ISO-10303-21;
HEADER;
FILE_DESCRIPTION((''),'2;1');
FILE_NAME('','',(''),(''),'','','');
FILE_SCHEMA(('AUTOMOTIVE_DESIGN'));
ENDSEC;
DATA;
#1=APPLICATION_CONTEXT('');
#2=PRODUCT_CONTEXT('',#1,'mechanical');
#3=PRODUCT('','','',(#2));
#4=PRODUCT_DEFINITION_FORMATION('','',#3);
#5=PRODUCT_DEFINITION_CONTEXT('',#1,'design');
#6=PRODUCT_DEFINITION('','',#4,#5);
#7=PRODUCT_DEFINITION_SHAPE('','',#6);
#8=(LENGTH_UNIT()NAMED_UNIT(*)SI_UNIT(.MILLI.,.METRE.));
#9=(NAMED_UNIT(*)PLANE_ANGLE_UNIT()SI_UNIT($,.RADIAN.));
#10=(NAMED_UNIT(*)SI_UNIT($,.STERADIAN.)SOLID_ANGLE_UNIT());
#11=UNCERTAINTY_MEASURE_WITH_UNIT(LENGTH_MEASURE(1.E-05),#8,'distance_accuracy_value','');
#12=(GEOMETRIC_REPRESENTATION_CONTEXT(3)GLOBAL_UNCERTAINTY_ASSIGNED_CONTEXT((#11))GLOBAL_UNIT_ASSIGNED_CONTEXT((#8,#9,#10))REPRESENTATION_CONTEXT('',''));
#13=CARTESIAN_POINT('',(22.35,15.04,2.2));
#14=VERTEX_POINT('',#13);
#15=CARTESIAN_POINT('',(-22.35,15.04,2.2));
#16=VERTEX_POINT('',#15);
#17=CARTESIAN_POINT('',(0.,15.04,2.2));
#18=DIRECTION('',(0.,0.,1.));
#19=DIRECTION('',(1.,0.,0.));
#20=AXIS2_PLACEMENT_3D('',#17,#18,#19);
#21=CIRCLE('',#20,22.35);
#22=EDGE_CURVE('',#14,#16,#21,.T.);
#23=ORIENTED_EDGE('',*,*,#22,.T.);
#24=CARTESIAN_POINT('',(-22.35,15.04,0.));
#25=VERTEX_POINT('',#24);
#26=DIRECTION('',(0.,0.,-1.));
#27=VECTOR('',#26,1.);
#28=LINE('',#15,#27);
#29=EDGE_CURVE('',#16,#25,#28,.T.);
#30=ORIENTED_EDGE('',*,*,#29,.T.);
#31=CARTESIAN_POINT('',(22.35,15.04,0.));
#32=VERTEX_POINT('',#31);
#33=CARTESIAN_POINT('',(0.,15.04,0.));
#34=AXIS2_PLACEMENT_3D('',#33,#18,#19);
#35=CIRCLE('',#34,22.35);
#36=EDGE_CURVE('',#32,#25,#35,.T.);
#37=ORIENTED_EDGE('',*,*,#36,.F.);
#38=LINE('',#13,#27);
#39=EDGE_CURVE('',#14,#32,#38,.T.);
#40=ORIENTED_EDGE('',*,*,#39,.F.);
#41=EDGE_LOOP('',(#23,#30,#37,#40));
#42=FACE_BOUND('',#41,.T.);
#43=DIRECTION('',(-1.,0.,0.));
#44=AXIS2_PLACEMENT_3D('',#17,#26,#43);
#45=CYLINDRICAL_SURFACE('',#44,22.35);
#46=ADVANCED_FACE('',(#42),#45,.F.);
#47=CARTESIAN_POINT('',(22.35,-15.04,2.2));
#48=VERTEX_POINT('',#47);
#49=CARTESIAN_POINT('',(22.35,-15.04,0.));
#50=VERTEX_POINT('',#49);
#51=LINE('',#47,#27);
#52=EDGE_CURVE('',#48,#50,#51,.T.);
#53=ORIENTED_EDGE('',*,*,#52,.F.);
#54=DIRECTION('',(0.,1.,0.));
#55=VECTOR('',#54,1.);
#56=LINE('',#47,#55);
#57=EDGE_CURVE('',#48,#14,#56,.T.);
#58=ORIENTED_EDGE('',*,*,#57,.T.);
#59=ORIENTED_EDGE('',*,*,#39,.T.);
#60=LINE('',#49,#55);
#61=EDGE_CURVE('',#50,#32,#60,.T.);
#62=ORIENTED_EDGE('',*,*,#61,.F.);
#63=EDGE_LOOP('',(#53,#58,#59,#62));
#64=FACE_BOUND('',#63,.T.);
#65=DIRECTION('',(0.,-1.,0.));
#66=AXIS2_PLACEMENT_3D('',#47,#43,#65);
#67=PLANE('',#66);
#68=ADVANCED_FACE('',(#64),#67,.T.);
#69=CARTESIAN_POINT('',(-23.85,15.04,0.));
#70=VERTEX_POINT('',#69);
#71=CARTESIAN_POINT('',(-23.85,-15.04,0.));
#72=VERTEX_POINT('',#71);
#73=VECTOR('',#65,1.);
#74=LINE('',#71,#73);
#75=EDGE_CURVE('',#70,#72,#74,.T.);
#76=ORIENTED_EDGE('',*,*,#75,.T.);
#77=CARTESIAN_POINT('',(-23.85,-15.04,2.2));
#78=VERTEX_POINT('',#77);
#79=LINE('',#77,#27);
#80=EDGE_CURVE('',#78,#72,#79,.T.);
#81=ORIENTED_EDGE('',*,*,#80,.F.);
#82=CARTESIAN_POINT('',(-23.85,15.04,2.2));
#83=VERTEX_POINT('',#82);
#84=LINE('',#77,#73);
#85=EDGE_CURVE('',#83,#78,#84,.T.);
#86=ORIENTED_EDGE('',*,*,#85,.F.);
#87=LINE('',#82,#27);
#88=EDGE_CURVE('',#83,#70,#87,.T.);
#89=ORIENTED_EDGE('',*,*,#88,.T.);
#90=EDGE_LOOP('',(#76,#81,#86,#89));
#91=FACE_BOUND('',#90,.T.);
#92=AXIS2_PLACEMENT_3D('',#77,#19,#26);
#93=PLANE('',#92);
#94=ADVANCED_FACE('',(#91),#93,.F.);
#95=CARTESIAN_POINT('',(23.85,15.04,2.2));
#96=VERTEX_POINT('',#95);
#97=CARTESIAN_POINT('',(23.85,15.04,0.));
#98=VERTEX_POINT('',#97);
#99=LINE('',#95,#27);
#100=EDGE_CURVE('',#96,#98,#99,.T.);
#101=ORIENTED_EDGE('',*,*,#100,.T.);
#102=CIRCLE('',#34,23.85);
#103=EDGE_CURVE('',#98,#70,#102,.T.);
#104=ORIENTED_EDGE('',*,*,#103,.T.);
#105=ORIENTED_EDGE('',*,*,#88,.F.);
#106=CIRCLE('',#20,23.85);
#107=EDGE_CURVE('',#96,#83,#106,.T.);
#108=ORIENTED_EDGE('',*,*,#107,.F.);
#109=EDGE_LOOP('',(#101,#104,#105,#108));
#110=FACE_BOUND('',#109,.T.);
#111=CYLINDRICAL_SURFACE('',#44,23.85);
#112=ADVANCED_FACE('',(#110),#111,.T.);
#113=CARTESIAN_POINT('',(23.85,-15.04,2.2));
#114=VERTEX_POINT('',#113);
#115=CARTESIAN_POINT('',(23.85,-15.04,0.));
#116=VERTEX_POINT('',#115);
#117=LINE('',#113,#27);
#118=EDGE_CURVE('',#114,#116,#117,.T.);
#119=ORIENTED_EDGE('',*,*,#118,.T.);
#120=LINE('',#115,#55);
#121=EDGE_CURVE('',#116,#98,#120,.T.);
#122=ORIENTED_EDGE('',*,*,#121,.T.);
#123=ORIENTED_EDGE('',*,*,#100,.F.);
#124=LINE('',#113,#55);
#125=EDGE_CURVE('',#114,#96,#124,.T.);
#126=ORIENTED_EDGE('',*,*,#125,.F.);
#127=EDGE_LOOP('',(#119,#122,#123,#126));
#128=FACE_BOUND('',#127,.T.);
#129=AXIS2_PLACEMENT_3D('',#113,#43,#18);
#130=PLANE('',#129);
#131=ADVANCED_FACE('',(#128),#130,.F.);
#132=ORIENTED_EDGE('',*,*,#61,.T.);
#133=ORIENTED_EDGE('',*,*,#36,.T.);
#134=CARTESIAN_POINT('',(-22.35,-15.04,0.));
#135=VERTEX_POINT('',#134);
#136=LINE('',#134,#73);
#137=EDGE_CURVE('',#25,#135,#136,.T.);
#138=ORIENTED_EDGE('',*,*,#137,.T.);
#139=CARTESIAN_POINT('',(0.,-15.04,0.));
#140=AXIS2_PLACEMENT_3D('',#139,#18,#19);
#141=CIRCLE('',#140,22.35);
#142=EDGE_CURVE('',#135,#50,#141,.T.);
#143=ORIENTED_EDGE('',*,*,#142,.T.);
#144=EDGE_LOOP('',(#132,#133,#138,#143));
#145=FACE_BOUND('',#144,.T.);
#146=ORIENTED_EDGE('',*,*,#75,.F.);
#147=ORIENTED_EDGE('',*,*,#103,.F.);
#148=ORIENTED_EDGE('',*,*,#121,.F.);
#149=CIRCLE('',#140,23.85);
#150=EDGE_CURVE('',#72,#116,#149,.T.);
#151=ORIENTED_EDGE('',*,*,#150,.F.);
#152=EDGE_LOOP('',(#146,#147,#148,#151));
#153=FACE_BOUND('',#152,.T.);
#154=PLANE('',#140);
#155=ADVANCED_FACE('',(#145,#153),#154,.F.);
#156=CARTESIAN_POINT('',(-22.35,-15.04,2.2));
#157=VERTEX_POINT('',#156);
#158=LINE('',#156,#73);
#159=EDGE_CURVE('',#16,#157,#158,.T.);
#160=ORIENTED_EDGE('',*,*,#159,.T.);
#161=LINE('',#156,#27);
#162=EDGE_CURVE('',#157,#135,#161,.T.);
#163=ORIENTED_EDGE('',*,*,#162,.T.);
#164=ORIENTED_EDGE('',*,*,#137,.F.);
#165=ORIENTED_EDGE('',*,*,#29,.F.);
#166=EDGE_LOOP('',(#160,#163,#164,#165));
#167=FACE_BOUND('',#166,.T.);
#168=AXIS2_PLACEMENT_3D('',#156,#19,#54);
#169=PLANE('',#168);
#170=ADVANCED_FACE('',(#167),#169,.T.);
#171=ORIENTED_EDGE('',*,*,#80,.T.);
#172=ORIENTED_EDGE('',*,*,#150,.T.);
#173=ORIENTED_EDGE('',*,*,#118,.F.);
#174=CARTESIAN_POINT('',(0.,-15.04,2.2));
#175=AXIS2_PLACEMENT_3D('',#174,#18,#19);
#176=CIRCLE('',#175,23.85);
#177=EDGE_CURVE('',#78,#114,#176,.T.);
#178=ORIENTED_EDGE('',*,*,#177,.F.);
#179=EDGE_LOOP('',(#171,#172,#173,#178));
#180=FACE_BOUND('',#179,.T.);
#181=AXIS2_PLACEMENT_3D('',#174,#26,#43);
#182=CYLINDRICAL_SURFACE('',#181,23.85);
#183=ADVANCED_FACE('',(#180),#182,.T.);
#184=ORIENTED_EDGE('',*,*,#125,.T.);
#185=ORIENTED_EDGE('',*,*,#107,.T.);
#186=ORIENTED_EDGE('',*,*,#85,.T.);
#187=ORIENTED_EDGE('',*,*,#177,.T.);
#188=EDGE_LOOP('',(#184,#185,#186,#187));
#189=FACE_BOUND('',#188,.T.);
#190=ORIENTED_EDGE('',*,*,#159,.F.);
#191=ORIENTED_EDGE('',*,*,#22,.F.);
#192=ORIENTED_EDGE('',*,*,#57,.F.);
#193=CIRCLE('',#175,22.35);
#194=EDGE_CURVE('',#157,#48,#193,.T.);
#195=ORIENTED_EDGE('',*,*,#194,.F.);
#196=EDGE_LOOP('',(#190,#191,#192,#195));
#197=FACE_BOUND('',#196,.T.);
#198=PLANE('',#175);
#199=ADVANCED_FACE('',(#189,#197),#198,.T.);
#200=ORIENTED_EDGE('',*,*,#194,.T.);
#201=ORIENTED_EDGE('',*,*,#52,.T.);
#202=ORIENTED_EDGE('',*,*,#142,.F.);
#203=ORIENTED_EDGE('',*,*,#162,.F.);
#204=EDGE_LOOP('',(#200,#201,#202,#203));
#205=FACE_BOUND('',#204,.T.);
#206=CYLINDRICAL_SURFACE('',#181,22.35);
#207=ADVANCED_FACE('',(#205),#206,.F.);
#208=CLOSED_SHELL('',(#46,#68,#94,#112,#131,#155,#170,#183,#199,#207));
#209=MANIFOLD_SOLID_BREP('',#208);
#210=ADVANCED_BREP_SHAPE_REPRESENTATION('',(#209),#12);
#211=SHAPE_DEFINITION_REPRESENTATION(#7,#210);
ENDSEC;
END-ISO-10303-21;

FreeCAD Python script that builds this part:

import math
import FreeCAD as App
import Part
import Sketcher

V = App.Vector

doc = App.newDocument("Part")
body = doc.addObject("PartDesign::Body", "Body")

# Sketch on XY plane
sketch1 = body.newObject("Sketcher::SketchObject", "Sketch")
sketch1.AttachmentSupport = (doc.getObject("XY_Plane"), [""])
sketch1.MapMode = "FlatFace"
sketch1.addGeometry(Part.LineSegment(V(-24, 15, 0), V(-24, -15, 0)), False)
sketch1.addGeometry(Part.ArcOfCircle(Part.Circle(V(0, -15, 0), V(0, 0, 1), 24), math.radians(180), math.radians(360)), False)
sketch1.addGeometry(Part.LineSegment(V(24, -15, 0), V(24, 15, 0)), False)
sketch1.addGeometry(Part.ArcOfCircle(Part.Circle(V(0, 15, 0), V(0, 0, 1), 24), math.radians(0), math.radians(180)), False)
sketch1.addGeometry(Part.LineSegment(V(-22, -15, 0), V(-22, 15, 0)), False)
sketch1.addGeometry(Part.ArcOfCircle(Part.Circle(V(0, 15, 0), V(0, 0, 1), 22), math.radians(0), math.radians(180)), False)
sketch1.addGeometry(Part.LineSegment(V(22, 15, 0), V(22, -15, 0)), False)
sketch1.addGeometry(Part.ArcOfCircle(Part.Circle(V(0, -15, 0), V(0, 0, 1), 22), math.radians(180), math.radians(360)), False)
sketch1.addConstraint(Sketcher.Constraint("Tangent", 0, 2, 1, 1))
sketch1.addConstraint(Sketcher.Constraint("Tangent", 1, 2, 2, 1))
sketch1.addConstraint(Sketcher.Constraint("Tangent", 2, 2, 3, 1))
sketch1.addConstraint(Sketcher.Constraint("Tangent", 3, 2, 0, 1))
sketch1.addConstraint(Sketcher.Constraint("Tangent", 4, 2, 5, 2))
sketch1.addConstraint(Sketcher.Constraint("Tangent", 5, 1, 6, 1))
sketch1.addConstraint(Sketcher.Constraint("Tangent", 6, 2, 7, 2))
sketch1.addConstraint(Sketcher.Constraint("Tangent", 7, 1, 4, 1))
sketch1.addConstraint(Sketcher.Constraint("Vertical", 0))
sketch1.addConstraint(Sketcher.Constraint("Vertical", 2))
sketch1.addConstraint(Sketcher.Constraint("Vertical", 4))
sketch1.addConstraint(Sketcher.Constraint("Vertical", 6))
sketch1.addConstraint(Sketcher.Constraint("Coincident", 5, 3, 3, 3))
sketch1.addConstraint(Sketcher.Constraint("Symmetric", 1, 3, 3, 3, -1, 1))
sketch1.addConstraint(Sketcher.Constraint("Horizontal", 7, 3, 0, 2))
sketch1.addConstraint(Sketcher.Constraint("Radius", 1, 23.85))
sketch1.addConstraint(Sketcher.Constraint("Radius", 5, 22.35))
sketch1.addConstraint(Sketcher.Constraint("DistanceY", 0, 2, 0, 1, 30.08))
pad1 = body.newObject("PartDesign::Pad", "Pad")
pad1.Profile = sketch1
pad1.Length = 2.2

doc.recompute()
